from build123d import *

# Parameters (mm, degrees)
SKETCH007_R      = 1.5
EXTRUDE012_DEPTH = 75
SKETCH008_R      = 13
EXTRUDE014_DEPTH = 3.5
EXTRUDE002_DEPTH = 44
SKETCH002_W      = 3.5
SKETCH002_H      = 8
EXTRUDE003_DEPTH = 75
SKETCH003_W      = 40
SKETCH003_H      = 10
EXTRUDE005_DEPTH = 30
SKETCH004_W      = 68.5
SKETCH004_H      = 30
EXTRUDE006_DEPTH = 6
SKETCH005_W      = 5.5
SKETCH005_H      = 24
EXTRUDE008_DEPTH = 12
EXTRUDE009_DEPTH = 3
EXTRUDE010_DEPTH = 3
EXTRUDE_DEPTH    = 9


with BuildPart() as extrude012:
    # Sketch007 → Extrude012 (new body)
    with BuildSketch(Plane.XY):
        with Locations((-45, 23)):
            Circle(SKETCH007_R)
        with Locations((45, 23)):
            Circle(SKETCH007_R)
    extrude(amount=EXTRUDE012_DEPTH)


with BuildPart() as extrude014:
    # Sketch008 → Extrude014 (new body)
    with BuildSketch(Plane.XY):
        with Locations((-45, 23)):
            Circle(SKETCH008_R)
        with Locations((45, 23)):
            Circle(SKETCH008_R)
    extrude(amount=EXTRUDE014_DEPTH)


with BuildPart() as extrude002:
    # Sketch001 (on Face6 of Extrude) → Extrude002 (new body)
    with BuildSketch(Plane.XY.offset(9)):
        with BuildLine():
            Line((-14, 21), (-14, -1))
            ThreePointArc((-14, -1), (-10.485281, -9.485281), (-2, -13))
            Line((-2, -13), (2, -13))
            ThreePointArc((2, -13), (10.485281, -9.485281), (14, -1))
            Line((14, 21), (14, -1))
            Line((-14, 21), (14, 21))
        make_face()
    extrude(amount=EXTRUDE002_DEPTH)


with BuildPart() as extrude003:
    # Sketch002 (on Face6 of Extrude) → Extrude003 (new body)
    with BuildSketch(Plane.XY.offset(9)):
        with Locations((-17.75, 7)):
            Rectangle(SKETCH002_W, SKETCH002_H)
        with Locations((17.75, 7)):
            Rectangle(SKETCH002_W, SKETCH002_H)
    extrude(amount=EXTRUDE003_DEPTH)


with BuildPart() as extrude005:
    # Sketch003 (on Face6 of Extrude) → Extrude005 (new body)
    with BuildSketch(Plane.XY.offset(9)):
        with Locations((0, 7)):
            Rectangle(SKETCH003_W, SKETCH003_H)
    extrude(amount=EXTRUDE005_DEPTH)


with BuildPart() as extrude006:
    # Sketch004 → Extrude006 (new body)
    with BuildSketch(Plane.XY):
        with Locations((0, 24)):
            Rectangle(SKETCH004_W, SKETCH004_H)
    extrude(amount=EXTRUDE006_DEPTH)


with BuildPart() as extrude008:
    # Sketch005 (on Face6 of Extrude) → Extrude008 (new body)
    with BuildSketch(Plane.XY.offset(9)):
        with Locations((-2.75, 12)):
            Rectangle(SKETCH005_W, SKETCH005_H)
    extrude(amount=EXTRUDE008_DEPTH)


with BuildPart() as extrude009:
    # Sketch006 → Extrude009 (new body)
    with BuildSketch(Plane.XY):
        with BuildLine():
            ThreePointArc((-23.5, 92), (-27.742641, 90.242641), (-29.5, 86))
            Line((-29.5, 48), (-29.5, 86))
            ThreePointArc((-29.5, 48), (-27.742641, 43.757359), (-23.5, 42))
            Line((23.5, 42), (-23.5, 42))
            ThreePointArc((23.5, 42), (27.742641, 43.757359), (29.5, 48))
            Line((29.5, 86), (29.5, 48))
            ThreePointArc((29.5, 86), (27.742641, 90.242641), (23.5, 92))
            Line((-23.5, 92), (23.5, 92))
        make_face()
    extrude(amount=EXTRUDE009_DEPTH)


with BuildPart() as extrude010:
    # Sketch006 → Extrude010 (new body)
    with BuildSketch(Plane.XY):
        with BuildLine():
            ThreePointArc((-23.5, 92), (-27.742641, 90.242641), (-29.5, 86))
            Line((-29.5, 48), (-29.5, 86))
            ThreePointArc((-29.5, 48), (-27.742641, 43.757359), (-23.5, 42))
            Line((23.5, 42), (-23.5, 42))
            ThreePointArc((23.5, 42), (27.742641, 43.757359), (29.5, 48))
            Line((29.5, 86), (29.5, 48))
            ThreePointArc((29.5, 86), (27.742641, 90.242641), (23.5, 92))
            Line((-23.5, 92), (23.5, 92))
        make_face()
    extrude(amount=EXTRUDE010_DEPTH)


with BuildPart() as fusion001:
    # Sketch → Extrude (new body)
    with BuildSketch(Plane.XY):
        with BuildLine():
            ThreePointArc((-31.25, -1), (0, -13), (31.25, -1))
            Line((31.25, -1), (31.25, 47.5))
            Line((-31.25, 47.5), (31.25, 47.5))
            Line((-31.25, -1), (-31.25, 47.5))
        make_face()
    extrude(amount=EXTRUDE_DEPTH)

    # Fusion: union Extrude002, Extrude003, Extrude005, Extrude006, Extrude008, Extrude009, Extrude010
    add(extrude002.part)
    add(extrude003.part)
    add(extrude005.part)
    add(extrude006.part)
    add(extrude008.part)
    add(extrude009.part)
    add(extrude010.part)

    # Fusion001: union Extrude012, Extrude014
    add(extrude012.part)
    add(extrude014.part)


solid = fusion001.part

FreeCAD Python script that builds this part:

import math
import FreeCAD as App
import Part
import Sketcher
Q = App.Units.Quantity

doc = App.newDocument("Part")
body = doc.addObject("PartDesign::Body", "Body")
body.AllowCompound = True

# Sketch on XY plane
sketch1 = body.newObject("Sketcher::SketchObject", "Sketch")
sketch1.AttachmentSupport = (doc.getObject("XY_Plane"), [""])
sketch1.MapMode = "FlatFace"
sketch1.addGeometry([
    Part.Circle(App.Vector(-45, 23, 0), App.Vector(0, 0, 1), 1.5),
    Part.Circle(App.Vector(45, 23, 0), App.Vector(0, 0, 1), 1.5),
], False)
sketch1.addConstraint([
    Sketcher.Constraint("Equal", 0, 1),
    Sketcher.Constraint("Symmetric", 0, 3, 1, 3, -2),
    Sketcher.Constraint("Diameter", 0, Q("3 mm")),
    Sketcher.Constraint("DistanceX", 0, 3, -1, 1, Q("45 mm")),
    Sketcher.Constraint("DistanceY", -1, 1, 0, 3, Q("23 mm")),
])
pad1 = body.newObject("PartDesign::Pad", "Pad")
pad1.Profile = sketch1
pad1.Length = 75
body2 = doc.addObject("PartDesign::Body", "Body001")
body2.AllowCompound = True

# Sketch on XY plane
sketch2 = body2.newObject("Sketcher::SketchObject", "Sketch001")
sketch2.AttachmentSupport = (doc.getObject("XY_Plane001"), [""])
sketch2.MapMode = "FlatFace"
sketch2.addGeometry([
    Part.Circle(App.Vector(-45, 23, 0), App.Vector(0, 0, 1), 13),
    Part.Circle(App.Vector(45, 23, 0), App.Vector(0, 0, 1), 13),
], False)
sketch2.addConstraint([
    Sketcher.Constraint("Equal", 0, 1),
    Sketcher.Constraint("Symmetric", 0, 3, 1, 3, -2),
    Sketcher.Constraint("Diameter", 0, Q("26 mm")),
    Sketcher.Constraint("DistanceX", 0, 3, -1, 1, Q("45 mm")),
    Sketcher.Constraint("DistanceY", -1, 1, 0, 3, Q("23 mm")),
])
pad2 = body2.newObject("PartDesign::Pad", "Pad001")
pad2.Profile = sketch2
pad2.Length = 3.5
body3 = doc.addObject("PartDesign::Body", "Body002")

# Sketch on XY plane
sketch3 = body3.newObject("Sketcher::SketchObject", "Sketch002")
sketch3.AttachmentSupport = (doc.getObject("XY_Plane002"), [""])
sketch3.MapMode = "FlatFace"
sketch3.AttachmentOffset = App.Placement(App.Vector(0, 0, 9), App.Rotation())
sketch3.addGeometry([
    Part.LineSegment(App.Vector(-14, 21, 0), App.Vector(-14, -1, 0)),  # 0
    Part.ArcOfCircle(Part.Circle(App.Vector(-1.999999, -0.999999, 0), App.Vector(0, 0, 1), 12.000001), math.radians(-179.999994), math.radians(-90.000006)),  # 1
    Part.LineSegment(App.Vector(-2, -13, 0), App.Vector(2, -13, 0)),  # 2
    Part.ArcOfCircle(Part.Circle(App.Vector(1.999999, -0.999999, 0), App.Vector(0, 0, 1), 12.000001), math.radians(-89.999994), math.radians(-0.000006)),  # 3
    Part.LineSegment(App.Vector(14, -1, 0), App.Vector(14, 21, 0)),  # 4
    Part.LineSegment(App.Vector(14, 21, 0), App.Vector(-14, 21, 0)),  # 5
], False)
sketch3.addConstraint([
    Sketcher.Constraint("Tangent", 0, 2, 1, 1),
    Sketcher.Constraint("Tangent", 1, 2, 2, 1),
    Sketcher.Constraint("Tangent", 2, 2, 3, 1),
    Sketcher.Constraint("Tangent", 3, 2, 4, 1),
    Sketcher.Constraint("Coincident", 4, 2, 5, 1),
    Sketcher.Constraint("Coincident", 5, 2, 0, 1),
    Sketcher.Constraint("Vertical", 0),
    Sketcher.Constraint("Horizontal", 2),
    Sketcher.Constraint("Vertical", 4),
    Sketcher.Constraint("Horizontal", 5),
    Sketcher.Constraint("Equal", 1, 3),
    Sketcher.Constraint("Radius", 1, Q("12.000001 mm")),
    Sketcher.Constraint("DistanceX", 2, 1, 2, 2, Q("4 mm")),
    Sketcher.Constraint("DistanceY", 0, 2, 0, 1, Q("22 mm")),
    Sketcher.Constraint("DistanceX", 1, 3, -1, 1, Q("1.999999 mm")),
    Sketcher.Constraint("DistanceY", 1, 3, -1, 1, Q("0.999999 mm")),
])
pad3 = body3.newObject("PartDesign::Pad", "Pad002")
pad3.Profile = sketch3
pad3.Length = 44
body4 = doc.addObject("PartDesign::Body", "Body003")
body4.AllowCompound = True

# Sketch on XY plane
sketch4 = body4.newObject("Sketcher::SketchObject", "Sketch003")
sketch4.AttachmentSupport = (doc.getObject("XY_Plane003"), [""])
sketch4.MapMode = "FlatFace"
sketch4.AttachmentOffset = App.Placement(App.Vector(0, 0, 9), App.Rotation())
sketch4.addGeometry([
    Part.LineSegment(App.Vector(-19.5, 11, 0), App.Vector(-19.5, 3, 0)),  # 0
    Part.LineSegment(App.Vector(-19.5, 3, 0), App.Vector(-16, 3, 0)),  # 1
    Part.LineSegment(App.Vector(-16, 3, 0), App.Vector(-16, 11, 0)),  # 2
    Part.LineSegment(App.Vector(-16, 11, 0), App.Vector(-19.5, 11, 0)),  # 3
    Part.LineSegment(App.Vector(16, 11, 0), App.Vector(16, 3, 0)),  # 4
    Part.LineSegment(App.Vector(16, 3, 0), App.Vector(19.5, 3, 0)),  # 5
    Part.LineSegment(App.Vector(19.5, 3, 0), App.Vector(19.5, 11, 0)),  # 6
    Part.LineSegment(App.Vector(19.5, 11, 0), App.Vector(16, 11, 0)),  # 7
], False)
sketch4.addConstraint([
    Sketcher.Constraint("Coincident", 0, 2, 1, 1),
    Sketcher.Constraint("Coincident", 1, 2, 2, 1),
    Sketcher.Constraint("Coincident", 2, 2, 3, 1),
    Sketcher.Constraint("Coincident", 3, 2, 0, 1),
    Sketcher.Constraint("Coincident", 4, 2, 5, 1),
    Sketcher.Constraint("Coincident", 5, 2, 6, 1),
    Sketcher.Constraint("Coincident", 6, 2, 7, 1),
    Sketcher.Constraint("Coincident", 7, 2, 4, 1),
    Sketcher.Constraint("Vertical", 0),
    Sketcher.Constraint("Horizontal", 1),
    Sketcher.Constraint("Vertical", 2),
    Sketcher.Constraint("Horizontal", 3),
    Sketcher.Constraint("Vertical", 4),
    Sketcher.Constraint("Horizontal", 5),
    Sketcher.Constraint("Vertical", 6),
    Sketcher.Constraint("Horizontal", 7),
    Sketcher.Constraint("Symmetric", 1, 2, 4, 2, -2),
    Sketcher.Constraint("Symmetric", 3, 2, 6, 2, -2),
    Sketcher.Constraint("DistanceY", 0, 2, 0, 1, Q("8 mm")),
    Sketcher.Constraint("DistanceX", 1, 1, 1, 2, Q("3.5 mm")),
    Sketcher.Constraint("DistanceY", -1, 1, 0, 2, Q("3 mm")),
    Sketcher.Constraint("DistanceX", 1, 2, -1, 1, Q("16 mm")),
])
pad4 = body4.newObject("PartDesign::Pad", "Pad003")
pad4.Profile = sketch4
pad4.Length = 75
body5 = doc.addObject("PartDesign::Body", "Body004")

# Sketch on XY plane
sketch5 = body5.newObject("Sketcher::SketchObject", "Sketch004")
sketch5.AttachmentSupport = (doc.getObject("XY_Plane004"), [""])
sketch5.MapMode = "FlatFace"
sketch5.AttachmentOffset = App.Placement(App.Vector(0, 0, 9), App.Rotation())
sketch5.addGeometry([
    Part.LineSegment(App.Vector(-20, 12, 0), App.Vector(-20, 2, 0)),
    Part.LineSegment(App.Vector(-20, 2, 0), App.Vector(20, 2, 0)),
    Part.LineSegment(App.Vector(20, 2, 0), App.Vector(20, 12, 0)),
    Part.LineSegment(App.Vector(20, 12, 0), App.Vector(-20, 12, 0)),
], False)
sketch5.addConstraint([
    Sketcher.Constraint("Coincident", 0, 2, 1, 1),
    Sketcher.Constraint("Coincident", 1, 2, 2, 1),
    Sketcher.Constraint("Coincident", 2, 2, 3, 1),
    Sketcher.Constraint("Coincident", 3, 2, 0, 1),
    Sketcher.Constraint("Vertical", 0),
    Sketcher.Constraint("Horizontal", 1),
    Sketcher.Constraint("Vertical", 2),
    Sketcher.Constraint("Horizontal", 3),
    Sketcher.Constraint("DistanceX", 1, 1, 1, 2, Q("40 mm")),
    Sketcher.Constraint("DistanceY", 0, 2, 0, 1, Q("10 mm")),
    Sketcher.Constraint("DistanceX", 0, 2, -1, 1, Q("20 mm")),
    Sketcher.Constraint("DistanceY", -1, 1, 0, 2, Q("2 mm")),
])
pad5 = body5.newObject("PartDesign::Pad", "Pad004")
pad5.Profile = sketch5
pad5.Length = 30
body6 = doc.addObject("PartDesign::Body", "Body005")

# Sketch on XY plane
sketch6 = body6.newObject("Sketcher::SketchObject", "Sketch005")
sketch6.AttachmentSupport = (doc.getObject("XY_Plane005"), [""])
sketch6.MapMode = "FlatFace"
sketch6.addGeometry([
    Part.LineSegment(App.Vector(-34.25, 39, 0), App.Vector(-34.25, 9, 0)),
    Part.LineSegment(App.Vector(-34.25, 9, 0), App.Vector(34.25, 9, 0)),
    Part.LineSegment(App.Vector(34.25, 9, 0), App.Vector(34.25, 39, 0)),
    Part.LineSegment(App.Vector(34.25, 39, 0), App.Vector(-34.25, 39, 0)),
], False)
sketch6.addConstraint([
    Sketcher.Constraint("Coincident", 0, 2, 1, 1),
    Sketcher.Constraint("Coincident", 1, 2, 2, 1),
    Sketcher.Constraint("Coincident", 2, 2, 3, 1),
    Sketcher.Constraint("Coincident", 3, 2, 0, 1),
    Sketcher.Constraint("Vertical", 0),
    Sketcher.Constraint("Horizontal", 1),
    Sketcher.Constraint("Vertical", 2),
    Sketcher.Constraint("Horizontal", 3),
    Sketcher.Constraint("DistanceY", 0, 2, 0, 1, Q("30 mm")),
    Sketcher.Constraint("DistanceX", 1, 1, 1, 2, Q("68.5 mm")),
    Sketcher.Constraint("DistanceY", -1, 1, 0, 2, Q("9 mm")),
    Sketcher.Constraint("DistanceX", 0, 2, -1, 1, Q("34.25 mm")),
])
pad6 = body6.newObject("PartDesign::Pad", "Pad005")
pad6.Profile = sketch6
pad6.Length = 6
body7 = doc.addObject("PartDesign::Body", "Body006")

# Sketch on XY plane
sketch7 = body7.newObject("Sketcher::SketchObject", "Sketch006")
sketch7.AttachmentSupport = (doc.getObject("XY_Plane006"), [""])
sketch7.MapMode = "FlatFace"
sketch7.AttachmentOffset = App.Placement(App.Vector(0, 0, 9), App.Rotation())
sketch7.addGeometry([
    Part.LineSegment(App.Vector(-5.5, 24, 0), App.Vector(-5.5, 0, 0)),
    Part.LineSegment(App.Vector(-5.5, 0, 0), App.Vector(0, 0, 0)),
    Part.LineSegment(App.Vector(0, 0, 0), App.Vector(0, 24, 0)),
    Part.LineSegment(App.Vector(0, 24, 0), App.Vector(-5.5, 24, 0)),
], False)
sketch7.addConstraint([
    Sketcher.Constraint("Coincident", 0, 2, 1, 1),
    Sketcher.Constraint("Coincident", 1, 2, 2, 1),
    Sketcher.Constraint("Coincident", 2, 2, 3, 1),
    Sketcher.Constraint("Coincident", 3, 2, 0, 1),
    Sketcher.Constraint("Vertical", 0),
    Sketcher.Constraint("Horizontal", 1),
    Sketcher.Constraint("Vertical", 2),
    Sketcher.Constraint("Horizontal", 3),
    Sketcher.Constraint("Coincident", 1, 2, -1, 1),
    Sketcher.Constraint("DistanceY", 0, 2, 0, 1, Q("24 mm")),
    Sketcher.Constraint("DistanceX", 1, 1, 1, 2, Q("5.5 mm")),
])
pad7 = body7.newObject("PartDesign::Pad", "Pad006")
pad7.Profile = sketch7
pad7.Length = 12
body8 = doc.addObject("PartDesign::Body", "Body007")

# Sketch on XY plane
sketch8 = body8.newObject("Sketcher::SketchObject", "Sketch007")
sketch8.AttachmentSupport = (doc.getObject("XY_Plane007"), [""])
sketch8.MapMode = "FlatFace"
sketch8.addGeometry([
    Part.ArcOfCircle(Part.Circle(App.Vector(-23.500001, 86.000001, 0), App.Vector(0, 0, 1), 5.999999), math.radians(89.99999), math.radians(180.00001)),  # 0
    Part.LineSegment(App.Vector(-29.5, 86, 0), App.Vector(-29.5, 48, 0)),  # 1
    Part.ArcOfCircle(Part.Circle(App.Vector(-23.500001, 47.999999, 0), App.Vector(0, 0, 1), 5.999999), math.radians(179.99999), math.radians(270.00001)),  # 2
    Part.LineSegment(App.Vector(-23.5, 42, 0), App.Vector(23.5, 42, 0)),  # 3
    Part.ArcOfCircle(Part.Circle(App.Vector(23.500001, 47.999999, 0), App.Vector(0, 0, 1), 5.999999), math.radians(-90.00001), math.radians(0.00001)),  # 4
    Part.LineSegment(App.Vector(29.5, 48, 0), App.Vector(29.5, 86, 0)),  # 5
    Part.ArcOfCircle(Part.Circle(App.Vector(23.500001, 86.000001, 0), App.Vector(0, 0, 1), 5.999999), math.radians(-0.00001), math.radians(90.00001)),  # 6
    Part.LineSegment(App.Vector(23.5, 92, 0), App.Vector(-23.5, 92, 0)),  # 7
], False)
sketch8.addConstraint([
    Sketcher.Constraint("Tangent", 0, 2, 1, 1),
    Sketcher.Constraint("Tangent", 1, 2, 2, 1),
    Sketcher.Constraint("Tangent", 2, 2, 3, 1),
    Sketcher.Constraint("Tangent", 3, 2, 4, 1),
    Sketcher.Constraint("Tangent", 4, 2, 5, 1),
    Sketcher.Constraint("Tangent", 5, 2, 6, 1),
    Sketcher.Constraint("Tangent", 6, 2, 7, 1),
    Sketcher.Constraint("Tangent", 7, 2, 0, 1),
    Sketcher.Constraint("Vertical", 1),
    Sketcher.Constraint("Horizontal", 3),
    Sketcher.Constraint("Vertical", 5),
    Sketcher.Constraint("Horizontal", 7),
    Sketcher.Constraint("Equal", 0, 2),
    Sketcher.Constraint("Equal", 2, 4),
    Sketcher.Constraint("Equal", 4, 6),
    Sketcher.Constraint("Radius", 0, Q("5.999999 mm")),
    Sketcher.Constraint("DistanceX", 3, 1, 3, 2, Q("47 mm")),
    Sketcher.Constraint("DistanceY", 1, 2, 1, 1, Q("38 mm")),
    Sketcher.Constraint("DistanceY", -1, 1, 0, 3, Q("86.000001 mm")),
    Sketcher.Constraint("DistanceX", 0, 3, -1, 1, Q("23.500001 mm")),
])
pad8 = body8.newObject("PartDesign::Pad", "Pad007")
pad8.Profile = sketch8
pad8.Length = 3
body9 = doc.addObject("PartDesign::Body", "Body008")

# Sketch on XY plane
sketch9 = body9.newObject("Sketcher::SketchObject", "Sketch008")
sketch9.AttachmentSupport = (doc.getObject("XY_Plane008"), [""])
sketch9.MapMode = "FlatFace"
sketch9.addGeometry([
    Part.ArcOfCircle(Part.Circle(App.Vector(-23.500001, 86.000001, 0), App.Vector(0, 0, 1), 5.999999), math.radians(89.99999), math.radians(180.00001)),  # 0
    Part.LineSegment(App.Vector(-29.5, 86, 0), App.Vector(-29.5, 48, 0)),  # 1
    Part.ArcOfCircle(Part.Circle(App.Vector(-23.500001, 47.999999, 0), App.Vector(0, 0, 1), 5.999999), math.radians(179.99999), math.radians(270.00001)),  # 2
    Part.LineSegment(App.Vector(-23.5, 42, 0), App.Vector(23.5, 42, 0)),  # 3
    Part.ArcOfCircle(Part.Circle(App.Vector(23.500001, 47.999999, 0), App.Vector(0, 0, 1), 5.999999), math.radians(-90.00001), math.radians(0.00001)),  # 4
    Part.LineSegment(App.Vector(29.5, 48, 0), App.Vector(29.5, 86, 0)),  # 5
    Part.ArcOfCircle(Part.Circle(App.Vector(23.500001, 86.000001, 0), App.Vector(0, 0, 1), 5.999999), math.radians(-0.00001), math.radians(90.00001)),  # 6
    Part.LineSegment(App.Vector(23.5, 92, 0), App.Vector(-23.5, 92, 0)),  # 7
], False)
sketch9.addConstraint([
    Sketcher.Constraint("Tangent", 0, 2, 1, 1),
    Sketcher.Constraint("Tangent", 1, 2, 2, 1),
    Sketcher.Constraint("Tangent", 2, 2, 3, 1),
    Sketcher.Constraint("Tangent", 3, 2, 4, 1),
    Sketcher.Constraint("Tangent", 4, 2, 5, 1),
    Sketcher.Constraint("Tangent", 5, 2, 6, 1),
    Sketcher.Constraint("Tangent", 6, 2, 7, 1),
    Sketcher.Constraint("Tangent", 7, 2, 0, 1),
    Sketcher.Constraint("Vertical", 1),
    Sketcher.Constraint("Horizontal", 3),
    Sketcher.Constraint("Vertical", 5),
    Sketcher.Constraint("Horizontal", 7),
    Sketcher.Constraint("Equal", 0, 2),
    Sketcher.Constraint("Equal", 2, 4),
    Sketcher.Constraint("Equal", 4, 6),
    Sketcher.Constraint("Radius", 0, Q("5.999999 mm")),
    Sketcher.Constraint("DistanceX", 3, 1, 3, 2, Q("47 mm")),
    Sketcher.Constraint("DistanceY", 1, 2, 1, 1, Q("38 mm")),
    Sketcher.Constraint("DistanceY", -1, 1, 0, 3, Q("86.000001 mm")),
    Sketcher.Constraint("DistanceX", 0, 3, -1, 1, Q("23.500001 mm")),
])
pad9 = body9.newObject("PartDesign::Pad", "Pad008")
pad9.Profile = sketch9
pad9.Length = 3
body10 = doc.addObject("PartDesign::Body", "Body009")
body10.AllowCompound = True

# Sketch on XY plane
sketch10 = body10.newObject("Sketcher::SketchObject", "Sketch009")
sketch10.AttachmentSupport = (doc.getObject("XY_Plane009"), [""])
sketch10.MapMode = "FlatFace"
sketch10.addGeometry([
    Part.ArcOfCircle(Part.Circle(App.Vector(0, 33.690104, 0), App.Vector(0, 0, 1), 46.690104), math.radians(-132.013579), math.radians(-47.986421)),
    Part.LineSegment(App.Vector(31.25, -1, 0), App.Vector(31.25, 47.5, 0)),
    Part.LineSegment(App.Vector(31.25, 47.5, 0), App.Vector(-31.25, 47.5, 0)),
    Part.LineSegment(App.Vector(-31.25, 47.5, 0), App.Vector(-31.25, -1, 0)),
], False)
sketch10.addConstraint([
    Sketcher.Constraint("Coincident", 0, 2, 1, 1),
    Sketcher.Constraint("Coincident", 1, 2, 2, 1),
    Sketcher.Constraint("Coincident", 2, 2, 3, 1),
    Sketcher.Constraint("Coincident", 3, 2, 0, 1),
    Sketcher.Constraint("Vertical", 1),
    Sketcher.Constraint("Horizontal", 2),
    Sketcher.Constraint("Vertical", 3),
    Sketcher.Constraint("Symmetric", 0, 2, 3, 2, -2),
    Sketcher.Constraint("DistanceX", 2, 2, 2, 1, Q("62.5 mm")),
    Sketcher.Constraint("DistanceY", 1, 1, 1, 2, Q("48.5 mm")),
    Sketcher.Constraint("DistanceY", 0, 2, -1, 1, Q("1 mm")),
    Sketcher.Constraint("Radius", 0, Q("46.690104 mm")),
])
pad10 = body10.newObject("PartDesign::Pad", "Pad009")
pad10.Profile = sketch10
pad10.Length = 9
doc.recompute()

boolean = body10.newObject("PartDesign::Boolean", "Boolean")
boolean.Type = "Fuse"
boolean.addObjects([body3])
doc.recompute()

boolean2 = body10.newObject("PartDesign::Boolean", "Boolean001")
boolean2.Type = "Fuse"
boolean2.addObjects([body4])
doc.recompute()

boolean3 = body10.newObject("PartDesign::Boolean", "Boolean002")
boolean3.Type = "Fuse"
boolean3.addObjects([body5])
doc.recompute()

boolean4 = body10.newObject("PartDesign::Boolean", "Boolean003")
boolean4.Type = "Fuse"
boolean4.addObjects([body6])
doc.recompute()

boolean5 = body10.newObject("PartDesign::Boolean", "Boolean004")
boolean5.Type = "Fuse"
boolean5.addObjects([body7])
doc.recompute()

boolean6 = body10.newObject("PartDesign::Boolean", "Boolean005")
boolean6.Type = "Fuse"
boolean6.addObjects([body8])
doc.recompute()

boolean7 = body10.newObject("PartDesign::Boolean", "Boolean006")
boolean7.Type = "Fuse"
boolean7.addObjects([body9])
doc.recompute()

boolean8 = body10.newObject("PartDesign::Boolean", "Boolean007")
boolean8.Type = "Fuse"
boolean8.addObjects([body])
doc.recompute()

boolean9 = body10.newObject("PartDesign::Boolean", "Boolean008")
boolean9.Type = "Fuse"
boolean9.addObjects([body2])

doc.recompute()
